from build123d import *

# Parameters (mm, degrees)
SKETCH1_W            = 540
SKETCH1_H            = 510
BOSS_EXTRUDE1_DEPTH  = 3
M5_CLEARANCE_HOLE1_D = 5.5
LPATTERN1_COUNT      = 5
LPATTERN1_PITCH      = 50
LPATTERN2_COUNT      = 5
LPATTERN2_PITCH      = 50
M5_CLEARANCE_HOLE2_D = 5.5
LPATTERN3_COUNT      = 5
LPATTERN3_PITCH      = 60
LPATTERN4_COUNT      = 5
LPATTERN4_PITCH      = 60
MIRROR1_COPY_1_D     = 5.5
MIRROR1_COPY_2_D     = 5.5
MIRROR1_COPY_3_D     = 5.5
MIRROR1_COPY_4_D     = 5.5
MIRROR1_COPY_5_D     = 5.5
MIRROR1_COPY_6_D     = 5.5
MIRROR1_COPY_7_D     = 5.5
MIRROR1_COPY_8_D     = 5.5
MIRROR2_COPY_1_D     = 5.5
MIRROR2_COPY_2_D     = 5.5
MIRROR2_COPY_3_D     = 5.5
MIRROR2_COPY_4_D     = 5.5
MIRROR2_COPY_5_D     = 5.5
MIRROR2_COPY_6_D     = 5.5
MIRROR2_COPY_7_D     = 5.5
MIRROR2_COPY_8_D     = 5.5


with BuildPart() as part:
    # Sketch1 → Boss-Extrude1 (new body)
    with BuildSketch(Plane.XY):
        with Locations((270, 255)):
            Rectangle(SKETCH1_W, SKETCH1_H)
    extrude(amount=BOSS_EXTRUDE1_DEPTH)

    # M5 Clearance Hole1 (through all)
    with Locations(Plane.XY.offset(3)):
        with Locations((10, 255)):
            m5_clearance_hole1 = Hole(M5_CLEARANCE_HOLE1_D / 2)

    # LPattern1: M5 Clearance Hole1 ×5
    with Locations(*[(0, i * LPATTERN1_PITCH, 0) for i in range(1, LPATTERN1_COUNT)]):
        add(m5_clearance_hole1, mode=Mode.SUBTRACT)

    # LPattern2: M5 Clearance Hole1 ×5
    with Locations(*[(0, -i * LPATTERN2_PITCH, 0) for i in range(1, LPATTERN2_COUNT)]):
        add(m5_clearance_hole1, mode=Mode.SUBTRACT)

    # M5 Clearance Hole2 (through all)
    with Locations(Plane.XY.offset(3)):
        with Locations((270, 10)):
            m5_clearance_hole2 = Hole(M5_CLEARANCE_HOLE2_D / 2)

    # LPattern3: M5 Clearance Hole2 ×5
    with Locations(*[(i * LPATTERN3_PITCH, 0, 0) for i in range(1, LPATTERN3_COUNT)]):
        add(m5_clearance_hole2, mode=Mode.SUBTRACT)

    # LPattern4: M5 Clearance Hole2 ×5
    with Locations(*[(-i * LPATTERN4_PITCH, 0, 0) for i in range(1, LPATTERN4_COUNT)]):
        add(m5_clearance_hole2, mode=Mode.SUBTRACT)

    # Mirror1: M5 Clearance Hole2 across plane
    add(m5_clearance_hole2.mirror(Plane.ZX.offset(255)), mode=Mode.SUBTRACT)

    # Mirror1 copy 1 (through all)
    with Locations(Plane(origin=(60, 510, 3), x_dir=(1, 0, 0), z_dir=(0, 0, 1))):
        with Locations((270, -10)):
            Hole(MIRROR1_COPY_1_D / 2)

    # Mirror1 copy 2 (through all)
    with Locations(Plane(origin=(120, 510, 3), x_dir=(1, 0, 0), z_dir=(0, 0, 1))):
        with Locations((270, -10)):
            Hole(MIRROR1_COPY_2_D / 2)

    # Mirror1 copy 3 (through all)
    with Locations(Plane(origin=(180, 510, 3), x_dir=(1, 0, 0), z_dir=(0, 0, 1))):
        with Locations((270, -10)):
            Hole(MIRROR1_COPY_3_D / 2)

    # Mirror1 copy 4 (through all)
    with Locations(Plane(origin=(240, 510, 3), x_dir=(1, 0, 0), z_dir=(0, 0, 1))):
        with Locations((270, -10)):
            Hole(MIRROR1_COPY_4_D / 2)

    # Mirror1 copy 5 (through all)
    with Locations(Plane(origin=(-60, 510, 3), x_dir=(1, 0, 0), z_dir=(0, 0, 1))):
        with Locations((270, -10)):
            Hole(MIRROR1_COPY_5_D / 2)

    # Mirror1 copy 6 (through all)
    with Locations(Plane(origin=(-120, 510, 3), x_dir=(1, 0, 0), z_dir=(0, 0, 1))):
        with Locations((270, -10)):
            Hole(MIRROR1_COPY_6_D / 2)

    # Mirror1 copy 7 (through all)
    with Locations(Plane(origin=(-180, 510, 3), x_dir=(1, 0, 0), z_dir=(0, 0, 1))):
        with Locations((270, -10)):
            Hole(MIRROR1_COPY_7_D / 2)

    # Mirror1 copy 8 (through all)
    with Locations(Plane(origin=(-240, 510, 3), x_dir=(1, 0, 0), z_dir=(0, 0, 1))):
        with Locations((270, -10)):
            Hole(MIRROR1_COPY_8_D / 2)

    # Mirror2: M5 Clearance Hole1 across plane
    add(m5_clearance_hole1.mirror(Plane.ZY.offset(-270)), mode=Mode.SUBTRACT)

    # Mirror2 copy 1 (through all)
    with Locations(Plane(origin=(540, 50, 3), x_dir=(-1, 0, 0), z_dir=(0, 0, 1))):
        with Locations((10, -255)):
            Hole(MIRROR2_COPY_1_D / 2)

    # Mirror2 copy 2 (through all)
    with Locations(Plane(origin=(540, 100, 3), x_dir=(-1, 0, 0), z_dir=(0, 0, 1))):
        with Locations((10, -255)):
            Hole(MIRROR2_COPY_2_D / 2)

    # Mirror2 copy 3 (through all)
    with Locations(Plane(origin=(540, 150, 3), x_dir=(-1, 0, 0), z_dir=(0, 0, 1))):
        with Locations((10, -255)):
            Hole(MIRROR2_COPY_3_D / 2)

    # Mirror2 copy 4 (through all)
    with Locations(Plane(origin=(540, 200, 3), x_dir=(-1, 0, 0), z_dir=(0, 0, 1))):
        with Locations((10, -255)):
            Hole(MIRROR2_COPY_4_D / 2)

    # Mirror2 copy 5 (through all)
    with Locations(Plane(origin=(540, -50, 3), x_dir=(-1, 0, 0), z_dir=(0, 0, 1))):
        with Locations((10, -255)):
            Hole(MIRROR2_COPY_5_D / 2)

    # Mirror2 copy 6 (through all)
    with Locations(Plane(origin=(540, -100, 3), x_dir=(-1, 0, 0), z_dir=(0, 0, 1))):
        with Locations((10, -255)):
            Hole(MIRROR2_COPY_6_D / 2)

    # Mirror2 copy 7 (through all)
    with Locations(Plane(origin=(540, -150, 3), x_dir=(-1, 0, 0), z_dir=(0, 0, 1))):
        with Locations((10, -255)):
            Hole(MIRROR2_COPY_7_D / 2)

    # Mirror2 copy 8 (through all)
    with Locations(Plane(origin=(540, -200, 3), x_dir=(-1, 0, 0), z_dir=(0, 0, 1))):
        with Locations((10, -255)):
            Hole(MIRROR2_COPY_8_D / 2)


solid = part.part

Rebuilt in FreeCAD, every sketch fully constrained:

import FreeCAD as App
import Part
import Sketcher
from FreeCAD import Vector


def add_polygon(sketch, points):
    """Adds a closed chain of lines whose ends are joined by coincident constraints."""
    first, n = sketch.GeometryCount, len(points)
    for a, b in zip(points, points[1:] + points[:1]):
        sketch.addGeometry(Part.LineSegment(App.Vector(*a, 0), App.Vector(*b, 0)), False)
    for i in range(n):
        sketch.addConstraint(Sketcher.Constraint("Coincident", first + i, 2, first + (i + 1) % n, 1))

doc = App.newDocument("Part")
body = doc.addObject("PartDesign::Body", "Body")

# Sketch on XY plane
sketch1 = body.newObject("Sketcher::SketchObject", "Sketch")
sketch1.AttachmentSupport = (doc.getObject("XY_Plane"), [""])
sketch1.MapMode = "FlatFace"
add_polygon(sketch1, [(0, 510), (0, 0), (540, 0), (540, 510)])  # lines 0-3
sketch1.addConstraint(Sketcher.Constraint("Vertical", 0))
sketch1.addConstraint(Sketcher.Constraint("Horizontal", 1))
sketch1.addConstraint(Sketcher.Constraint("Vertical", 2))
sketch1.addConstraint(Sketcher.Constraint("Horizontal", 3))
sketch1.addConstraint(Sketcher.Constraint("Coincident", 0, 2, -1, 1))
sketch1.addConstraint(Sketcher.Constraint("DistanceX", 1, 1, 1, 2, 540.0))
sketch1.addConstraint(Sketcher.Constraint("DistanceY", 0, 2, 0, 1, 510.0))
pad1 = body.newObject("PartDesign::Pad", "Pad")
pad1.Profile = sketch1
pad1.Length = 3

# Sketch on XY plane
sketch2 = body.newObject("Sketcher::SketchObject", "Sketch001")
sketch2.AttachmentSupport = (doc.getObject("XY_Plane"), [""])
sketch2.MapMode = "FlatFace"
sketch2.AttachmentOffset = App.Placement(Vector(0, 0, 3), App.Rotation())
sketch2.addGeometry(Part.Circle(Vector(10, 255, 0), Vector(0, 0, 1), 2.8), False)
sketch2.addConstraint(Sketcher.Constraint("Diameter", 0, 5.5))
sketch2.addConstraint(Sketcher.Constraint("DistanceX", -1, 1, 0, 3, 10.0))
sketch2.addConstraint(Sketcher.Constraint("DistanceY", -1, 1, 0, 3, 255.0))
doc.recompute()
hole = body.newObject("PartDesign::Hole", "Hole")
hole.Profile = sketch2
hole.ThreadType = "None"
hole.Diameter = 5.5
hole.DepthType = "ThroughAll"
doc.recompute()

linearpattern = body.newObject("PartDesign::LinearPattern", "LinearPattern")
linearpattern.Originals = [hole]
linearpattern.Direction = (doc.getObject("Y_Axis"), [""])
linearpattern.Mode = "offset"
linearpattern.Offset = 50
linearpattern.Occurrences = 5
body.Tip = linearpattern
doc.recompute()

linearpattern2 = body.newObject("PartDesign::LinearPattern", "LinearPattern001")
linearpattern2.Originals = [hole]
linearpattern2.Direction = (doc.getObject("Y_Axis"), [""])
linearpattern2.Mode = "offset"
linearpattern2.Offset = 50
linearpattern2.Occurrences = 5
linearpattern2.Reversed = True
body.Tip = linearpattern2

# Sketch on XY plane
sketch3 = body.newObject("Sketcher::SketchObject", "Sketch002")
sketch3.AttachmentSupport = (doc.getObject("XY_Plane"), [""])
sketch3.MapMode = "FlatFace"
sketch3.AttachmentOffset = App.Placement(Vector(0, 0, 3), App.Rotation())
sketch3.addGeometry(Part.Circle(Vector(270, 10, 0), Vector(0, 0, 1), 2.8), False)
sketch3.addConstraint(Sketcher.Constraint("Diameter", 0, 5.5))
sketch3.addConstraint(Sketcher.Constraint("DistanceX", -1, 1, 0, 3, 270.0))
sketch3.addConstraint(Sketcher.Constraint("DistanceY", -1, 1, 0, 3, 10.0))
doc.recompute()
hole2 = body.newObject("PartDesign::Hole", "Hole001")
hole2.Profile = sketch3
hole2.ThreadType = "None"
hole2.Diameter = 5.5
hole2.DepthType = "ThroughAll"
doc.recompute()

linearpattern3 = body.newObject("PartDesign::LinearPattern", "LinearPattern002")
linearpattern3.Originals = [hole2]
linearpattern3.Direction = (doc.getObject("X_Axis"), [""])
linearpattern3.Mode = "offset"
linearpattern3.Offset = 60
linearpattern3.Occurrences = 5
body.Tip = linearpattern3
doc.recompute()

linearpattern4 = body.newObject("PartDesign::LinearPattern", "LinearPattern003")
linearpattern4.Originals = [hole2]
linearpattern4.Direction = (doc.getObject("X_Axis"), [""])
linearpattern4.Mode = "offset"
linearpattern4.Offset = 60
linearpattern4.Occurrences = 5
linearpattern4.Reversed = True
body.Tip = linearpattern4
doc.recompute()

datumplane = body.newObject("PartDesign::Plane", "DatumPlane")
datumplane.AttachmentSupport = (doc.getObject("XZ_Plane"), [""])
datumplane.MapMode = "FlatFace"
datumplane.AttachmentOffset = App.Placement(Vector(0, 0, -255), App.Rotation())
mirrored = body.newObject("PartDesign::Mirrored", "Mirrored")
mirrored.Originals = [hole2]
mirrored.MirrorPlane = (datumplane, [""])
body.Tip = mirrored

# Sketch on XY plane
sketch4 = body.newObject("Sketcher::SketchObject", "Sketch003")
sketch4.AttachmentSupport = (doc.getObject("XY_Plane"), [""])
sketch4.MapMode = "FlatFace"
sketch4.AttachmentOffset = App.Placement(Vector(0, 0, 3), App.Rotation())
sketch4.addGeometry(Part.Circle(Vector(330, 500, 0), Vector(0, 0, 1), 2.8), False)
sketch4.addConstraint(Sketcher.Constraint("Diameter", 0, 5.5))
sketch4.addConstraint(Sketcher.Constraint("DistanceX", -1, 1, 0, 3, 330.0))
sketch4.addConstraint(Sketcher.Constraint("DistanceY", -1, 1, 0, 3, 500.0))
doc.recompute()
hole3 = body.newObject("PartDesign::Hole", "Hole002")
hole3.Profile = sketch4
hole3.ThreadType = "None"
hole3.Diameter = 5.5
hole3.DepthType = "ThroughAll"

# Sketch on XY plane
sketch5 = body.newObject("Sketcher::SketchObject", "Sketch004")
sketch5.AttachmentSupport = (doc.getObject("XY_Plane"), [""])
sketch5.MapMode = "FlatFace"
sketch5.AttachmentOffset = App.Placement(Vector(0, 0, 3), App.Rotation())
sketch5.addGeometry(Part.Circle(Vector(390, 500, 0), Vector(0, 0, 1), 2.8), False)
sketch5.addConstraint(Sketcher.Constraint("Diameter", 0, 5.5))
sketch5.addConstraint(Sketcher.Constraint("DistanceX", -1, 1, 0, 3, 390.0))
sketch5.addConstraint(Sketcher.Constraint("DistanceY", -1, 1, 0, 3, 500.0))
doc.recompute()
hole4 = body.newObject("PartDesign::Hole", "Hole003")
hole4.Profile = sketch5
hole4.ThreadType = "None"
hole4.Diameter = 5.5
hole4.DepthType = "ThroughAll"

# Sketch on XY plane
sketch6 = body.newObject("Sketcher::SketchObject", "Sketch005")
sketch6.AttachmentSupport = (doc.getObject("XY_Plane"), [""])
sketch6.MapMode = "FlatFace"
sketch6.AttachmentOffset = App.Placement(Vector(0, 0, 3), App.Rotation())
sketch6.addGeometry(Part.Circle(Vector(450, 500, 0), Vector(0, 0, 1), 2.8), False)
sketch6.addConstraint(Sketcher.Constraint("Diameter", 0, 5.5))
sketch6.addConstraint(Sketcher.Constraint("DistanceX", -1, 1, 0, 3, 450.0))
sketch6.addConstraint(Sketcher.Constraint("DistanceY", -1, 1, 0, 3, 500.0))
doc.recompute()
hole5 = body.newObject("PartDesign::Hole", "Hole004")
hole5.Profile = sketch6
hole5.ThreadType = "None"
hole5.Diameter = 5.5
hole5.DepthType = "ThroughAll"

# Sketch on XY plane
sketch7 = body.newObject("Sketcher::SketchObject", "Sketch006")
sketch7.AttachmentSupport = (doc.getObject("XY_Plane"), [""])
sketch7.MapMode = "FlatFace"
sketch7.AttachmentOffset = App.Placement(Vector(0, 0, 3), App.Rotation())
sketch7.addGeometry(Part.Circle(Vector(510, 500, 0), Vector(0, 0, 1), 2.8), False)
sketch7.addConstraint(Sketcher.Constraint("Diameter", 0, 5.5))
sketch7.addConstraint(Sketcher.Constraint("DistanceX", -1, 1, 0, 3, 510.0))
sketch7.addConstraint(Sketcher.Constraint("DistanceY", -1, 1, 0, 3, 500.0))
doc.recompute()
hole6 = body.newObject("PartDesign::Hole", "Hole005")
hole6.Profile = sketch7
hole6.ThreadType = "None"
hole6.Diameter = 5.5
hole6.DepthType = "ThroughAll"

# Sketch on XY plane
sketch8 = body.newObject("Sketcher::SketchObject", "Sketch007")
sketch8.AttachmentSupport = (doc.getObject("XY_Plane"), [""])
sketch8.MapMode = "FlatFace"
sketch8.AttachmentOffset = App.Placement(Vector(0, 0, 3), App.Rotation())
sketch8.addGeometry(Part.Circle(Vector(210, 500, 0), Vector(0, 0, 1), 2.8), False)
sketch8.addConstraint(Sketcher.Constraint("Diameter", 0, 5.5))
sketch8.addConstraint(Sketcher.Constraint("DistanceX", -1, 1, 0, 3, 210.0))
sketch8.addConstraint(Sketcher.Constraint("DistanceY", -1, 1, 0, 3, 500.0))
doc.recompute()
hole7 = body.newObject("PartDesign::Hole", "Hole006")
hole7.Profile = sketch8
hole7.ThreadType = "None"
hole7.Diameter = 5.5
hole7.DepthType = "ThroughAll"

# Sketch on XY plane
sketch9 = body.newObject("Sketcher::SketchObject", "Sketch008")
sketch9.AttachmentSupport = (doc.getObject("XY_Plane"), [""])
sketch9.MapMode = "FlatFace"
sketch9.AttachmentOffset = App.Placement(Vector(0, 0, 3), App.Rotation())
sketch9.addGeometry(Part.Circle(Vector(150, 500, 0), Vector(0, 0, 1), 2.8), False)
sketch9.addConstraint(Sketcher.Constraint("Diameter", 0, 5.5))
sketch9.addConstraint(Sketcher.Constraint("DistanceX", -1, 1, 0, 3, 150.0))
sketch9.addConstraint(Sketcher.Constraint("DistanceY", -1, 1, 0, 3, 500.0))
doc.recompute()
hole8 = body.newObject("PartDesign::Hole", "Hole007")
hole8.Profile = sketch9
hole8.ThreadType = "None"
hole8.Diameter = 5.5
hole8.DepthType = "ThroughAll"

# Sketch on XY plane
sketch10 = body.newObject("Sketcher::SketchObject", "Sketch009")
sketch10.AttachmentSupport = (doc.getObject("XY_Plane"), [""])
sketch10.MapMode = "FlatFace"
sketch10.AttachmentOffset = App.Placement(Vector(0, 0, 3), App.Rotation())
sketch10.addGeometry(Part.Circle(Vector(90, 500, 0), Vector(0, 0, 1), 2.8), False)
sketch10.addConstraint(Sketcher.Constraint("Diameter", 0, 5.5))
sketch10.addConstraint(Sketcher.Constraint("DistanceX", -1, 1, 0, 3, 90.0))
sketch10.addConstraint(Sketcher.Constraint("DistanceY", -1, 1, 0, 3, 500.0))
doc.recompute()
hole9 = body.newObject("PartDesign::Hole", "Hole008")
hole9.Profile = sketch10
hole9.ThreadType = "None"
hole9.Diameter = 5.5
hole9.DepthType = "ThroughAll"

# Sketch on XY plane
sketch11 = body.newObject("Sketcher::SketchObject", "Sketch010")
sketch11.AttachmentSupport = (doc.getObject("XY_Plane"), [""])
sketch11.MapMode = "FlatFace"
sketch11.AttachmentOffset = App.Placement(Vector(0, 0, 3), App.Rotation())
sketch11.addGeometry(Part.Circle(Vector(30, 500, 0), Vector(0, 0, 1), 2.8), False)
sketch11.addConstraint(Sketcher.Constraint("Diameter", 0, 5.5))
sketch11.addConstraint(Sketcher.Constraint("DistanceX", -1, 1, 0, 3, 30.0))
sketch11.addConstraint(Sketcher.Constraint("DistanceY", -1, 1, 0, 3, 500.0))
doc.recompute()
hole10 = body.newObject("PartDesign::Hole", "Hole009")
hole10.Profile = sketch11
hole10.ThreadType = "None"
hole10.Diameter = 5.5
hole10.DepthType = "ThroughAll"
doc.recompute()

datumplane2 = body.newObject("PartDesign::Plane", "DatumPlane001")
datumplane2.AttachmentSupport = (doc.getObject("YZ_Plane"), [""])
datumplane2.MapMode = "FlatFace"
datumplane2.AttachmentOffset = App.Placement(Vector(0, 0, 270), App.Rotation())
mirrored2 = body.newObject("PartDesign::Mirrored", "Mirrored001")
mirrored2.Originals = [hole]
mirrored2.MirrorPlane = (datumplane2, [""])
body.Tip = mirrored2

# Sketch on XY plane
sketch12 = body.newObject("Sketcher::SketchObject", "Sketch011")
sketch12.AttachmentSupport = (doc.getObject("XY_Plane"), [""])
sketch12.MapMode = "FlatFace"
sketch12.AttachmentOffset = App.Placement(Vector(0, 0, 3), App.Rotation())
sketch12.addGeometry(Part.Circle(Vector(530, 305, 0), Vector(0, 0, 1), 2.8), False)
sketch12.addConstraint(Sketcher.Constraint("Diameter", 0, 5.5))
sketch12.addConstraint(Sketcher.Constraint("DistanceX", -1, 1, 0, 3, 530.0))
sketch12.addConstraint(Sketcher.Constraint("DistanceY", -1, 1, 0, 3, 305.0))
doc.recompute()
hole11 = body.newObject("PartDesign::Hole", "Hole010")
hole11.Profile = sketch12
hole11.ThreadType = "None"
hole11.Diameter = 5.5
hole11.DepthType = "ThroughAll"

# Sketch on XY plane
sketch13 = body.newObject("Sketcher::SketchObject", "Sketch012")
sketch13.AttachmentSupport = (doc.getObject("XY_Plane"), [""])
sketch13.MapMode = "FlatFace"
sketch13.AttachmentOffset = App.Placement(Vector(0, 0, 3), App.Rotation())
sketch13.addGeometry(Part.Circle(Vector(530, 355, 0), Vector(0, 0, 1), 2.8), False)
sketch13.addConstraint(Sketcher.Constraint("Diameter", 0, 5.5))
sketch13.addConstraint(Sketcher.Constraint("DistanceX", -1, 1, 0, 3, 530.0))
sketch13.addConstraint(Sketcher.Constraint("DistanceY", -1, 1, 0, 3, 355.0))
doc.recompute()
hole12 = body.newObject("PartDesign::Hole", "Hole011")
hole12.Profile = sketch13
hole12.ThreadType = "None"
hole12.Diameter = 5.5
hole12.DepthType = "ThroughAll"

# Sketch on XY plane
sketch14 = body.newObject("Sketcher::SketchObject", "Sketch013")
sketch14.AttachmentSupport = (doc.getObject("XY_Plane"), [""])
sketch14.MapMode = "FlatFace"
sketch14.AttachmentOffset = App.Placement(Vector(0, 0, 3), App.Rotation())
sketch14.addGeometry(Part.Circle(Vector(530, 405, 0), Vector(0, 0, 1), 2.8), False)
sketch14.addConstraint(Sketcher.Constraint("Diameter", 0, 5.5))
sketch14.addConstraint(Sketcher.Constraint("DistanceX", -1, 1, 0, 3, 530.0))
sketch14.addConstraint(Sketcher.Constraint("DistanceY", -1, 1, 0, 3, 405.0))
doc.recompute()
hole13 = body.newObject("PartDesign::Hole", "Hole012")
hole13.Profile = sketch14
hole13.ThreadType = "None"
hole13.Diameter = 5.5
hole13.DepthType = "ThroughAll"

# Sketch on XY plane
sketch15 = body.newObject("Sketcher::SketchObject", "Sketch014")
sketch15.AttachmentSupport = (doc.getObject("XY_Plane"), [""])
sketch15.MapMode = "FlatFace"
sketch15.AttachmentOffset = App.Placement(Vector(0, 0, 3), App.Rotation())
sketch15.addGeometry(Part.Circle(Vector(530, 455, 0), Vector(0, 0, 1), 2.8), False)
sketch15.addConstraint(Sketcher.Constraint("Diameter", 0, 5.5))
sketch15.addConstraint(Sketcher.Constraint("DistanceX", -1, 1, 0, 3, 530.0))
sketch15.addConstraint(Sketcher.Constraint("DistanceY", -1, 1, 0, 3, 455.0))
doc.recompute()
hole14 = body.newObject("PartDesign::Hole", "Hole013")
hole14.Profile = sketch15
hole14.ThreadType = "None"
hole14.Diameter = 5.5
hole14.DepthType = "ThroughAll"

# Sketch on XY plane
sketch16 = body.newObject("Sketcher::SketchObject", "Sketch015")
sketch16.AttachmentSupport = (doc.getObject("XY_Plane"), [""])
sketch16.MapMode = "FlatFace"
sketch16.AttachmentOffset = App.Placement(Vector(0, 0, 3), App.Rotation())
sketch16.addGeometry(Part.Circle(Vector(530, 205, 0), Vector(0, 0, 1), 2.8), False)
sketch16.addConstraint(Sketcher.Constraint("Diameter", 0, 5.5))
sketch16.addConstraint(Sketcher.Constraint("DistanceX", -1, 1, 0, 3, 530.0))
sketch16.addConstraint(Sketcher.Constraint("DistanceY", -1, 1, 0, 3, 205.0))
doc.recompute()
hole15 = body.newObject("PartDesign::Hole", "Hole014")
hole15.Profile = sketch16
hole15.ThreadType = "None"
hole15.Diameter = 5.5
hole15.DepthType = "ThroughAll"

# Sketch on XY plane
sketch17 = body.newObject("Sketcher::SketchObject", "Sketch016")
sketch17.AttachmentSupport = (doc.getObject("XY_Plane"), [""])
sketch17.MapMode = "FlatFace"
sketch17.AttachmentOffset = App.Placement(Vector(0, 0, 3), App.Rotation())
sketch17.addGeometry(Part.Circle(Vector(530, 155, 0), Vector(0, 0, 1), 2.8), False)
sketch17.addConstraint(Sketcher.Constraint("Diameter", 0, 5.5))
sketch17.addConstraint(Sketcher.Constraint("DistanceX", -1, 1, 0, 3, 530.0))
sketch17.addConstraint(Sketcher.Constraint("DistanceY", -1, 1, 0, 3, 155.0))
doc.recompute()
hole16 = body.newObject("PartDesign::Hole", "Hole015")
hole16.Profile = sketch17
hole16.ThreadType = "None"
hole16.Diameter = 5.5
hole16.DepthType = "ThroughAll"

# Sketch on XY plane
sketch18 = body.newObject("Sketcher::SketchObject", "Sketch017")
sketch18.AttachmentSupport = (doc.getObject("XY_Plane"), [""])
sketch18.MapMode = "FlatFace"
sketch18.AttachmentOffset = App.Placement(Vector(0, 0, 3), App.Rotation())
sketch18.addGeometry(Part.Circle(Vector(530, 105, 0), Vector(0, 0, 1), 2.8), False)
sketch18.addConstraint(Sketcher.Constraint("Diameter", 0, 5.5))
sketch18.addConstraint(Sketcher.Constraint("DistanceX", -1, 1, 0, 3, 530.0))
sketch18.addConstraint(Sketcher.Constraint("DistanceY", -1, 1, 0, 3, 105.0))
doc.recompute()
hole17 = body.newObject("PartDesign::Hole", "Hole016")
hole17.Profile = sketch18
hole17.ThreadType = "None"
hole17.Diameter = 5.5
hole17.DepthType = "ThroughAll"

# Sketch on XY plane
sketch19 = body.newObject("Sketcher::SketchObject", "Sketch018")
sketch19.AttachmentSupport = (doc.getObject("XY_Plane"), [""])
sketch19.MapMode = "FlatFace"
sketch19.AttachmentOffset = App.Placement(Vector(0, 0, 3), App.Rotation())
sketch19.addGeometry(Part.Circle(Vector(530, 55, 0), Vector(0, 0, 1), 2.8), False)
sketch19.addConstraint(Sketcher.Constraint("Diameter", 0, 5.5))
sketch19.addConstraint(Sketcher.Constraint("DistanceX", -1, 1, 0, 3, 530.0))
sketch19.addConstraint(Sketcher.Constraint("DistanceY", -1, 1, 0, 3, 55.0))
doc.recompute()
hole18 = body.newObject("PartDesign::Hole", "Hole017")
hole18.Profile = sketch19
hole18.ThreadType = "None"
hole18.Diameter = 5.5
hole18.DepthType = "ThroughAll"

doc.recompute()
